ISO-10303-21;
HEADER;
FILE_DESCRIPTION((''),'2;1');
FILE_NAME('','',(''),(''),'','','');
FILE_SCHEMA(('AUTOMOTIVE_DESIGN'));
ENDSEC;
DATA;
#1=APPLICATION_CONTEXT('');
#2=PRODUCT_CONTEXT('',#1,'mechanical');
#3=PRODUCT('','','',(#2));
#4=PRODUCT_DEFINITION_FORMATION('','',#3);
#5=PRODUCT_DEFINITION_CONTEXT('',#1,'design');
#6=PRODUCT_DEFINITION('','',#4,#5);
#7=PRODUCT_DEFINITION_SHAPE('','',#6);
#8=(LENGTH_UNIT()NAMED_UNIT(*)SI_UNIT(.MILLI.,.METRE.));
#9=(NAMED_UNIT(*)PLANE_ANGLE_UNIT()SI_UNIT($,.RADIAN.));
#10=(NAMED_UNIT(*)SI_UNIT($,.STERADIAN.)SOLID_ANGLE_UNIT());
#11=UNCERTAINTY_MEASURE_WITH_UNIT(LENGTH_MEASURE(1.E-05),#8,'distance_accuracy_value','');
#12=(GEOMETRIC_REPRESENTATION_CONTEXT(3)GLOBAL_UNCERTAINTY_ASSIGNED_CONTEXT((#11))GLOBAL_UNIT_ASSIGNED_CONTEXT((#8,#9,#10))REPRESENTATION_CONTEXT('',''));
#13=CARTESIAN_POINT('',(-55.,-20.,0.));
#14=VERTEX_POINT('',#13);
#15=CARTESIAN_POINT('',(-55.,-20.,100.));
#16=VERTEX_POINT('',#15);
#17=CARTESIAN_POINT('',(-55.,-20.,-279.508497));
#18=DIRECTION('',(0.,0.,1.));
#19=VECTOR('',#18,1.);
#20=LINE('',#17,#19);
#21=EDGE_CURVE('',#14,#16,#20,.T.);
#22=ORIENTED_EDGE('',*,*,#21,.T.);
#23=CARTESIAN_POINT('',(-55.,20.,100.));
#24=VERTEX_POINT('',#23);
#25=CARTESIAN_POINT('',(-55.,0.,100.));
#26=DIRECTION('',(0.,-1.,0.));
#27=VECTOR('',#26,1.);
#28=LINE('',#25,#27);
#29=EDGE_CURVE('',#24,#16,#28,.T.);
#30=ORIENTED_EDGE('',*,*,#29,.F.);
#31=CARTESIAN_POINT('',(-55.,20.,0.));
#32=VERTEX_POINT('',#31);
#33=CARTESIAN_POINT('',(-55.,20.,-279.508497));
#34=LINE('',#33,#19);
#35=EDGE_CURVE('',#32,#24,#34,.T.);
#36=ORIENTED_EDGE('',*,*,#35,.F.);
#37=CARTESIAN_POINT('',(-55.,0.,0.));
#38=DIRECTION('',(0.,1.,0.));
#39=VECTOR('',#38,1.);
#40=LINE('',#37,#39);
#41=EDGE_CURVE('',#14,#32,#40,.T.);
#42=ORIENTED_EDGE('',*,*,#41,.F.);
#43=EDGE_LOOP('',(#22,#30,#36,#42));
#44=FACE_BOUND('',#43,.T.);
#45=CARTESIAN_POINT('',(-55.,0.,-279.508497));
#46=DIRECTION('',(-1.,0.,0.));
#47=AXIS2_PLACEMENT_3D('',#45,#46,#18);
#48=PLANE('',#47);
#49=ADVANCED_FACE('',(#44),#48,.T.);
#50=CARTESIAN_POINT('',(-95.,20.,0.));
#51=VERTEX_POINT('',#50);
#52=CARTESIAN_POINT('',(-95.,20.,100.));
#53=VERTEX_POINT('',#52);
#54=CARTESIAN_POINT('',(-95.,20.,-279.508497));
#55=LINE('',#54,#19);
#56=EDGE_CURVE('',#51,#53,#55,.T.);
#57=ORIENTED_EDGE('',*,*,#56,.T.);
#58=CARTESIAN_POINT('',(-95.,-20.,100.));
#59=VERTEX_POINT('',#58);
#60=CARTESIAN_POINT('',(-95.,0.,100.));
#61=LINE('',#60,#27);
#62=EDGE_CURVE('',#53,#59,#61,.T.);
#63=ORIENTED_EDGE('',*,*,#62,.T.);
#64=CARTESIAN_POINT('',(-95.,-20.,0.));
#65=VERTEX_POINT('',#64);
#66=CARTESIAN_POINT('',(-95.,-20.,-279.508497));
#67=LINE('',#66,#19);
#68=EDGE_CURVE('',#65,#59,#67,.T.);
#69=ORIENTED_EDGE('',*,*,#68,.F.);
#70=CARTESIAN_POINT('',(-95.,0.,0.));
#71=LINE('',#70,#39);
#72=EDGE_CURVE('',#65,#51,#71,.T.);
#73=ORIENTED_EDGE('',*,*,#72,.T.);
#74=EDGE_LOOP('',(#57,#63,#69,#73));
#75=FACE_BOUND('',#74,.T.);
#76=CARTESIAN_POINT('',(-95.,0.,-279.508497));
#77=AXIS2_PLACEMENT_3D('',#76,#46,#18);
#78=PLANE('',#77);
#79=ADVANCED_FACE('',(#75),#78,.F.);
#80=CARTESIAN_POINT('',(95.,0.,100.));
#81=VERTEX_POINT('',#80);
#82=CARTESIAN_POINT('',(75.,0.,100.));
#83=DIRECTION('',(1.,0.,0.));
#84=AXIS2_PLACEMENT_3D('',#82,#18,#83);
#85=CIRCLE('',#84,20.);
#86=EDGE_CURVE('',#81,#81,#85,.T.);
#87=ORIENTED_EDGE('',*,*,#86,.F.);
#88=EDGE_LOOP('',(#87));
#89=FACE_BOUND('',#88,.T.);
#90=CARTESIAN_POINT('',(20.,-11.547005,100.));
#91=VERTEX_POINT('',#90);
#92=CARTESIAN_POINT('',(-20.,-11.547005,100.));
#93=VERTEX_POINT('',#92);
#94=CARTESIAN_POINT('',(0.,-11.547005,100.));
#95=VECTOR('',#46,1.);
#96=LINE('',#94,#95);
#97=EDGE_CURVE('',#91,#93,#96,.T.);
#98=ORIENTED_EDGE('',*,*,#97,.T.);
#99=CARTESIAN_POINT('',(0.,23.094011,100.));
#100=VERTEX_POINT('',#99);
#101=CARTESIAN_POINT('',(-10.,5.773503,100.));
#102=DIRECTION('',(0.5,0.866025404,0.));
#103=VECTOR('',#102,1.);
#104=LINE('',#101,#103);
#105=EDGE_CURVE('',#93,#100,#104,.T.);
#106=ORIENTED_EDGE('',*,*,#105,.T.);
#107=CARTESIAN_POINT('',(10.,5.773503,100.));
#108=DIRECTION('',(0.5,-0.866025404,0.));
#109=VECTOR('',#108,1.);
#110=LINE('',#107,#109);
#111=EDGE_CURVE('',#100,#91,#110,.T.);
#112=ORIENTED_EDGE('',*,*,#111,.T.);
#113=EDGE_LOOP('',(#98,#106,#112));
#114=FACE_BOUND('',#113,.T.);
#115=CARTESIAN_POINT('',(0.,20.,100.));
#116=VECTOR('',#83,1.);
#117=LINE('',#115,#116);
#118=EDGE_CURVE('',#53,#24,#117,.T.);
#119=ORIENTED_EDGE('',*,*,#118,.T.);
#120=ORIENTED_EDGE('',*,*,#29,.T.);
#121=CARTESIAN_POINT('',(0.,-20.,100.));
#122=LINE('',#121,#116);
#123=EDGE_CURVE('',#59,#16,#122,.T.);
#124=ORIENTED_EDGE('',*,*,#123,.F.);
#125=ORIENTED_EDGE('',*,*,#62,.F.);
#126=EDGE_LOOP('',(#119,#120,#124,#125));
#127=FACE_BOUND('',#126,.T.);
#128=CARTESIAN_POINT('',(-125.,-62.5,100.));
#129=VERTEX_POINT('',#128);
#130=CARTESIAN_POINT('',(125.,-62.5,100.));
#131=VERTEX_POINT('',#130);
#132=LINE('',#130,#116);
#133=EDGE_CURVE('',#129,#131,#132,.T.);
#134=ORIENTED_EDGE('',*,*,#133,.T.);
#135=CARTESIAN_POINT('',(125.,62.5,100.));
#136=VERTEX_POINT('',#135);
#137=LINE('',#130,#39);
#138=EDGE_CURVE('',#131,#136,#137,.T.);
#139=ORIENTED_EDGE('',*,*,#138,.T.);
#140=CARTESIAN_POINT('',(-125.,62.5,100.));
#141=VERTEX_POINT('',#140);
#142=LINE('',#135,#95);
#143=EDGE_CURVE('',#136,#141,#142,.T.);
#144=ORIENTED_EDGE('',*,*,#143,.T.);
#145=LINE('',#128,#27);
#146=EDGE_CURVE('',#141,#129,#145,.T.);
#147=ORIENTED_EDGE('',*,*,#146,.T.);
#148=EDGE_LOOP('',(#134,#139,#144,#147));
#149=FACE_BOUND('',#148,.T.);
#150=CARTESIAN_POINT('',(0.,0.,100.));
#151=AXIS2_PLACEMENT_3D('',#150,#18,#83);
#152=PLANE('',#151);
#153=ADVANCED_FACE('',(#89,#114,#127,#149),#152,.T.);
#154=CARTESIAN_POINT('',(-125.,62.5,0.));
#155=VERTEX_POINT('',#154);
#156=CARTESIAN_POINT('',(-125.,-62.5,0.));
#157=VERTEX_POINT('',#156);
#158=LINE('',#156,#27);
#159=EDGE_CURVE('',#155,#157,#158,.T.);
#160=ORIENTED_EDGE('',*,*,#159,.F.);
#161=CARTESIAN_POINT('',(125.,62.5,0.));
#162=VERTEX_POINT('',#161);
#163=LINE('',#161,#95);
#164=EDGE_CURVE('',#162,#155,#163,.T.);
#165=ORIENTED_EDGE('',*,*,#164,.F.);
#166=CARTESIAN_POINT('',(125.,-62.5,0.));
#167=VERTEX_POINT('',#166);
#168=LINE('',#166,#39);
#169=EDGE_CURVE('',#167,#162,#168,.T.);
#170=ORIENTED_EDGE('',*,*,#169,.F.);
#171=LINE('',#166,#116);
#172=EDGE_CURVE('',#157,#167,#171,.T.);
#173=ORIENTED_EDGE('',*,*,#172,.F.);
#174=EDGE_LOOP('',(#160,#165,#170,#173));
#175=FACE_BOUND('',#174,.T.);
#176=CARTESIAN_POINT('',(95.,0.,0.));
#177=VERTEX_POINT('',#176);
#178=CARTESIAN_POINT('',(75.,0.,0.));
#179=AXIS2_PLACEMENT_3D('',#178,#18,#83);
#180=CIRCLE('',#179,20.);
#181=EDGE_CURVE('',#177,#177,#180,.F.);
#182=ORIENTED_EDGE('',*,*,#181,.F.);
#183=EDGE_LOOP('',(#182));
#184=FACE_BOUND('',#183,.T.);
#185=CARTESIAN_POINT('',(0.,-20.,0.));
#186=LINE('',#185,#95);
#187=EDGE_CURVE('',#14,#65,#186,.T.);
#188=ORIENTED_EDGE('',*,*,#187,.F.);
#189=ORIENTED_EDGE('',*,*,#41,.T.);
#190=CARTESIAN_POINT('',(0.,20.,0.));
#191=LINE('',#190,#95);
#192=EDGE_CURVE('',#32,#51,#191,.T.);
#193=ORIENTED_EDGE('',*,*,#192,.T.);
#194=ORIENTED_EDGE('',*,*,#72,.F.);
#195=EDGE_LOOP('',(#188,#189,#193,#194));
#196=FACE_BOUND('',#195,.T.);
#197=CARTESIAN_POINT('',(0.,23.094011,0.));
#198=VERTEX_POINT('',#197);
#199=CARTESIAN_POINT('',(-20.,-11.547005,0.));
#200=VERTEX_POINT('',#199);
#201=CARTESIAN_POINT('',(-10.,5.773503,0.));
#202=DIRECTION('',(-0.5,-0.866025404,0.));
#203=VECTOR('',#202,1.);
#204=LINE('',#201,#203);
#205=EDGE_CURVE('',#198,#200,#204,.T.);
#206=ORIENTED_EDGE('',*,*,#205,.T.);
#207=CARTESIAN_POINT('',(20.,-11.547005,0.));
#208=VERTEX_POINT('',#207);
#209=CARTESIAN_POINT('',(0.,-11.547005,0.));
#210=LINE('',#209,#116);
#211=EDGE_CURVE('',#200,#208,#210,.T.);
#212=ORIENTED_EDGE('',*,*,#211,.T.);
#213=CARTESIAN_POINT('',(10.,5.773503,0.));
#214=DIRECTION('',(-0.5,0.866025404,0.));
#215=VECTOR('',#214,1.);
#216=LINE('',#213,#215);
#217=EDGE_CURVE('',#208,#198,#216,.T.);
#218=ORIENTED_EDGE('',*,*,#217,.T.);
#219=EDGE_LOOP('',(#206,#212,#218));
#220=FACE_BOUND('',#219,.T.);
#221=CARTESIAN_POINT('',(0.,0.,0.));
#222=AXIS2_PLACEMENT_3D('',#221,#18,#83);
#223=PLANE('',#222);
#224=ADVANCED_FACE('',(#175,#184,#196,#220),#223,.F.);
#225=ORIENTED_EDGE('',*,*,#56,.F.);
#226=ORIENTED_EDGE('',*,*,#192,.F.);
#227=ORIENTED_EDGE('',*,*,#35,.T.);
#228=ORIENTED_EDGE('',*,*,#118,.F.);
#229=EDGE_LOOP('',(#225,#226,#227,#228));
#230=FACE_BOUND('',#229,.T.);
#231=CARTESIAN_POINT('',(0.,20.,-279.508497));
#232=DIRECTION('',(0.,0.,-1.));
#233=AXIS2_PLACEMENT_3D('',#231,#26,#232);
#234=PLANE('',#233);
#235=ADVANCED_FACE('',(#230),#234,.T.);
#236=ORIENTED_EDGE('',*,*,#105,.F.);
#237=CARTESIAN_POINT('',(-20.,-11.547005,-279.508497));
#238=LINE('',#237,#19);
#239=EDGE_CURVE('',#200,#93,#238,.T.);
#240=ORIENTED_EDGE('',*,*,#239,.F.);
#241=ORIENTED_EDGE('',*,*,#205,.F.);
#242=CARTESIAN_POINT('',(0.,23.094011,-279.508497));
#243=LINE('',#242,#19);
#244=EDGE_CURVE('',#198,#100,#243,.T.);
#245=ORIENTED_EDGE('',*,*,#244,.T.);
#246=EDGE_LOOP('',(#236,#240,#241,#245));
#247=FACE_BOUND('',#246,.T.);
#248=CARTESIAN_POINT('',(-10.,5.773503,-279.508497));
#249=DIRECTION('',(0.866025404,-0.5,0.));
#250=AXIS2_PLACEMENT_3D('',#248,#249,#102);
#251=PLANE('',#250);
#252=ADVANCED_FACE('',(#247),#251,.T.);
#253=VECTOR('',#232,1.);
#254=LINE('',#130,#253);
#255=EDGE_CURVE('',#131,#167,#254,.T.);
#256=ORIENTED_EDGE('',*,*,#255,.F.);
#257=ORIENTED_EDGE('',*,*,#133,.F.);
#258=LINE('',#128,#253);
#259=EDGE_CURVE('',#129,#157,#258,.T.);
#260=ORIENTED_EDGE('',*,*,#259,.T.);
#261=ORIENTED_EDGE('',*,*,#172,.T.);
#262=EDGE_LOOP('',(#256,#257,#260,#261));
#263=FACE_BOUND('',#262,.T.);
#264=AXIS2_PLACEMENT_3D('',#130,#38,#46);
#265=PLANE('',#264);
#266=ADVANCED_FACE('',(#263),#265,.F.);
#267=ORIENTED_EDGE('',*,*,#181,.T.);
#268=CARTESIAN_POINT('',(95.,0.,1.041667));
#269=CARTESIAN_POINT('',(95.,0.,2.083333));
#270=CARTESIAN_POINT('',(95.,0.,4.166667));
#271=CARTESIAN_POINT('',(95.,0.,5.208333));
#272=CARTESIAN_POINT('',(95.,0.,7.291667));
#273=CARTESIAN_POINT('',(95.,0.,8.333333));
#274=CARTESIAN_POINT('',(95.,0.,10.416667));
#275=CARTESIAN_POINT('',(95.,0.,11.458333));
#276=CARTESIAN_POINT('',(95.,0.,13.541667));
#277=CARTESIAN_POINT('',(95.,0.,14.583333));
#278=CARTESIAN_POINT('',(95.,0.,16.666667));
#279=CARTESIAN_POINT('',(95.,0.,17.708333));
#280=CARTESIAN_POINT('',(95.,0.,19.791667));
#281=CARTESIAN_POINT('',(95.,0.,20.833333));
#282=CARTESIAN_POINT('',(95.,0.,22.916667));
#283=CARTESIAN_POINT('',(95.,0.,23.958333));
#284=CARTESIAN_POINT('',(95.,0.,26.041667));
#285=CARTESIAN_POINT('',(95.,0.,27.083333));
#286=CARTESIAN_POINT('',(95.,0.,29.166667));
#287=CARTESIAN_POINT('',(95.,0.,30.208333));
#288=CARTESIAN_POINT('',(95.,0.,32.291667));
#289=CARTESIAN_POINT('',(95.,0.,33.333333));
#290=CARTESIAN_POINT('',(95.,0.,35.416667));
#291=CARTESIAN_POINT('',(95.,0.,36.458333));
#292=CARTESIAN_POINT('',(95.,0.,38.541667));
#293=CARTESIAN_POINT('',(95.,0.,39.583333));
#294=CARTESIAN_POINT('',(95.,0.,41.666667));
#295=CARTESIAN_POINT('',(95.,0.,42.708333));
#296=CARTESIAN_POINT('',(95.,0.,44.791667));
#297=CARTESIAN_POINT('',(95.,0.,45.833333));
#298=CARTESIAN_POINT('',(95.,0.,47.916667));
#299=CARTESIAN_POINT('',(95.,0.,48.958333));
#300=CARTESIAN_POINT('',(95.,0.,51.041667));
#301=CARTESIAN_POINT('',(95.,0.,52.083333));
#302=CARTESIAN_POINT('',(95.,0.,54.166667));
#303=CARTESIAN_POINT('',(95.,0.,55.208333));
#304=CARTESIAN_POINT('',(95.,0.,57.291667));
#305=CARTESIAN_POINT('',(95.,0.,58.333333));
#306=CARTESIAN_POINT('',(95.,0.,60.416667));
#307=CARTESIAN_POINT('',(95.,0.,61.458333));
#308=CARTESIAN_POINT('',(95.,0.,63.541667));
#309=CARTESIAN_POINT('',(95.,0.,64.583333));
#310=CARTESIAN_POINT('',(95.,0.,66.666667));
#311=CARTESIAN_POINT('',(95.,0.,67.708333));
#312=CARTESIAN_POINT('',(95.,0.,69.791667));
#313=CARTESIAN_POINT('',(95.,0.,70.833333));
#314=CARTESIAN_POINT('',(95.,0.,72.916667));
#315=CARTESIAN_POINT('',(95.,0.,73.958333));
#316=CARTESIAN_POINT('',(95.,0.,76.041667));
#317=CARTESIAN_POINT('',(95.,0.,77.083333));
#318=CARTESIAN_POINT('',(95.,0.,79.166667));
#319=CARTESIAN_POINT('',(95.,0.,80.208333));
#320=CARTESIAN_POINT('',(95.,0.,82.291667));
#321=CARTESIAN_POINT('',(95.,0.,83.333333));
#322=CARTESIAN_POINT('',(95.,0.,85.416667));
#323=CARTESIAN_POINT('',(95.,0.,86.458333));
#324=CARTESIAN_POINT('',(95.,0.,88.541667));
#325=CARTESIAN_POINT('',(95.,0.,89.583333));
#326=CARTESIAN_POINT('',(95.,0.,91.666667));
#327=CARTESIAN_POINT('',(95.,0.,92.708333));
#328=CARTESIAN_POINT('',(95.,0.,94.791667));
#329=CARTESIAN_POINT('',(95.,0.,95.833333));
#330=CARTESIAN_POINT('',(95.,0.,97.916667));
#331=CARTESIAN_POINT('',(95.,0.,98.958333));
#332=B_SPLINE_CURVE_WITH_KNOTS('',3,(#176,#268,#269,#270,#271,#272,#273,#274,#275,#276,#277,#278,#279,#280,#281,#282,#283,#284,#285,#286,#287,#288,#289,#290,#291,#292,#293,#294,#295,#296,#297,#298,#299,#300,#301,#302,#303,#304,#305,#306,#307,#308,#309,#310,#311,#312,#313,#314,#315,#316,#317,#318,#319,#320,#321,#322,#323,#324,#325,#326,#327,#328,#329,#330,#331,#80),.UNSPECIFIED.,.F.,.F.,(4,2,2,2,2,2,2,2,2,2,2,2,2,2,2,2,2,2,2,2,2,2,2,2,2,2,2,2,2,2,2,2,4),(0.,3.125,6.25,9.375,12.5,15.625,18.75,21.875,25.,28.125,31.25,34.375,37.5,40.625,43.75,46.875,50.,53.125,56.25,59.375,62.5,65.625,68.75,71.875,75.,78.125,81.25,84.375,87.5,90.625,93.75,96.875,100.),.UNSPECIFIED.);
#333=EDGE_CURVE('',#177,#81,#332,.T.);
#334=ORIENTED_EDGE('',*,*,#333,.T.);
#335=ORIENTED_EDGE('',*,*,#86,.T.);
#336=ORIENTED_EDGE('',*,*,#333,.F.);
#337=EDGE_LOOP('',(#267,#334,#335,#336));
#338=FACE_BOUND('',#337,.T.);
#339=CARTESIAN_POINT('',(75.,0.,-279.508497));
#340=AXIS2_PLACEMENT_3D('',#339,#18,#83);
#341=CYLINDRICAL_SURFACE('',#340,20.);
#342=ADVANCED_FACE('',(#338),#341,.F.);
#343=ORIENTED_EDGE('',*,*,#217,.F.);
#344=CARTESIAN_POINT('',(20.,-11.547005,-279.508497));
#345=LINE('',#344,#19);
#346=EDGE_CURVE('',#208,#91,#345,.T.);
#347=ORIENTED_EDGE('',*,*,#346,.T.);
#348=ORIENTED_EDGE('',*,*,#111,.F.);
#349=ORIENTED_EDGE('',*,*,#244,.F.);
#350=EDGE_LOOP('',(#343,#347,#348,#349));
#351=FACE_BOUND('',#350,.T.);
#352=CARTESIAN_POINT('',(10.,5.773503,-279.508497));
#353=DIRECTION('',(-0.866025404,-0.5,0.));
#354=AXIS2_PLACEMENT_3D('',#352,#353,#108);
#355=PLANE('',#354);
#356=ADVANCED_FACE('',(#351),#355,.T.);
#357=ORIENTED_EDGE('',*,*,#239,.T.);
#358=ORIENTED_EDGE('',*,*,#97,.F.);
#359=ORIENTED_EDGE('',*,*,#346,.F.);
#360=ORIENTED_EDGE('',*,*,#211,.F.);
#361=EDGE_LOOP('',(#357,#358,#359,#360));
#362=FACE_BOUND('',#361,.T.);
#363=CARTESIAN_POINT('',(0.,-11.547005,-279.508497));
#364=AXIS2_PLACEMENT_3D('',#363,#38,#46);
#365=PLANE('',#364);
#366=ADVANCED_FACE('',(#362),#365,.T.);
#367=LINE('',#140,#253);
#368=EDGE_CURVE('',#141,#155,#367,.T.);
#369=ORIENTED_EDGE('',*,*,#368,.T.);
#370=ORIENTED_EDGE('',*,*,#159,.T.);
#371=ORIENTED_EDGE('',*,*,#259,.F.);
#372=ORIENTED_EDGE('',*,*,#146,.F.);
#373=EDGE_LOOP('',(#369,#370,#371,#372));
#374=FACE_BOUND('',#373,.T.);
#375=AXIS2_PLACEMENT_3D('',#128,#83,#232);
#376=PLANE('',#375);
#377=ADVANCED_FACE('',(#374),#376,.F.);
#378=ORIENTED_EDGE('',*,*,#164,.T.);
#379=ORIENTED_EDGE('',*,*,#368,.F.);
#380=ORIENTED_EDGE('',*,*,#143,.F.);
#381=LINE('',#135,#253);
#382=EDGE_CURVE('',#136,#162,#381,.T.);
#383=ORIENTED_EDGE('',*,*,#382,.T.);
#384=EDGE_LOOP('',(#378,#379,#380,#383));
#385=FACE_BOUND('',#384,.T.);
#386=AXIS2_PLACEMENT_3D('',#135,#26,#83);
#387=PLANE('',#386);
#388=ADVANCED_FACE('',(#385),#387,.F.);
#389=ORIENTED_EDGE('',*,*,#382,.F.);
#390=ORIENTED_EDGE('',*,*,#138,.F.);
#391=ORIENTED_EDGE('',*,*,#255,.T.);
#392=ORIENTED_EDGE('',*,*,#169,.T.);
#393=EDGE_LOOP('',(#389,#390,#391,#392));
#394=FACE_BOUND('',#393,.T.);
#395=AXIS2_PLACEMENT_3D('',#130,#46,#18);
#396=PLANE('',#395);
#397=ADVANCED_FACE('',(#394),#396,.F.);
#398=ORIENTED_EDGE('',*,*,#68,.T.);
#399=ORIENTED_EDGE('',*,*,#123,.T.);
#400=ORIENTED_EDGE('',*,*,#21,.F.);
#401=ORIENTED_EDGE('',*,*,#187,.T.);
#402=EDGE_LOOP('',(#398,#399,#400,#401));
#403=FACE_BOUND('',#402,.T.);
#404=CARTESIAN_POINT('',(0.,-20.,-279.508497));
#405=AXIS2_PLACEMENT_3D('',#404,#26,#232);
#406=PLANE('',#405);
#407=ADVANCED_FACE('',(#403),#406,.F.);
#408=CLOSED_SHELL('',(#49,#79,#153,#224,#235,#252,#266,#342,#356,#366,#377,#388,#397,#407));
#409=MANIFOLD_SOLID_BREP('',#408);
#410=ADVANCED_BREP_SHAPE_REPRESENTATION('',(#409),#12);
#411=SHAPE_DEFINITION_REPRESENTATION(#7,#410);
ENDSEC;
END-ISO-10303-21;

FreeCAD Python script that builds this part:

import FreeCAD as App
import Part
import Sketcher
Q = App.Units.Quantity

doc = App.newDocument("Part")
body = doc.addObject("PartDesign::Body", "Body")

sketch1 = body.newObject("Sketcher::SketchObject", "Sketch")
sketch1.AttachmentSupport = (doc.getObject("XY_Plane"), [""])
sketch1.MapMode = "FlatFace"
sketch1.addGeometry([
    Part.LineSegment(App.Vector(-125, 62, 0), App.Vector(-125, -62, 0)),
    Part.LineSegment(App.Vector(-125, -62, 0), App.Vector(125, -62, 0)),
    Part.LineSegment(App.Vector(125, -62, 0), App.Vector(125, 62, 0)),
    Part.LineSegment(App.Vector(125, 62, 0), App.Vector(-125, 62, 0)),
    Part.LineSegment(App.Vector(115, -58, 0), App.Vector(-115, -58, 0)),
    Part.LineSegment(App.Vector(-115, -58, 0), App.Vector(-115, 58, 0)),
    Part.LineSegment(App.Vector(-115, 58, 0), App.Vector(115, 58, 0)),
    Part.LineSegment(App.Vector(115, 58, 0), App.Vector(115, -58, 0)),
], False)
sketch1.addConstraint([
    Sketcher.Constraint("Coincident", 0, 2, 1, 1),
    Sketcher.Constraint("Coincident", 1, 2, 2, 1),
    Sketcher.Constraint("Coincident", 2, 2, 3, 1),
    Sketcher.Constraint("Coincident", 3, 2, 0, 1),
    Sketcher.Constraint("Coincident", 4, 2, 5, 1),
    Sketcher.Constraint("Coincident", 5, 2, 6, 1),
    Sketcher.Constraint("Coincident", 6, 2, 7, 1),
    Sketcher.Constraint("Coincident", 7, 2, 4, 1),
    Sketcher.Constraint("Vertical", 0),
    Sketcher.Constraint("Horizontal", 1),
    Sketcher.Constraint("Vertical", 2),
    Sketcher.Constraint("Horizontal", 3),
    Sketcher.Constraint("Horizontal", 4),
    Sketcher.Constraint("Vertical", 5),
    Sketcher.Constraint("Horizontal", 6),
    Sketcher.Constraint("Vertical", 7),
    Sketcher.Constraint("Symmetric", 0, 2, 2, 2, -1, 1),
    Sketcher.Constraint("Symmetric", 4, 2, 6, 2, -1, 1),
    Sketcher.Constraint("DistanceX", 1, 1, 1, 2, Q("250 mm")),
    Sketcher.Constraint("DistanceX", 4, 2, 4, 1, Q("230 mm")),
    Sketcher.Constraint("DistanceY", 0, 2, 0, 1, Q("125 mm")),
    Sketcher.Constraint("DistanceY", 5, 1, 5, 2, Q("115 mm")),
])
pad1 = body.newObject("PartDesign::Pad", "Pad")
pad1.Profile = sketch1
pad1.Length = 100

sketch2 = body.newObject("Sketcher::SketchObject", "Sketch001")
sketch2.AttachmentSupport = (doc.getObject("XY_Plane"), [""])
sketch2.MapMode = "FlatFace"
sketch2.AttachmentOffset = App.Placement(App.Vector(0, 0, 100), App.Rotation())
sketch2.addGeometry([
    Part.LineSegment(App.Vector(-125, 62, 0), App.Vector(-125, -62, 0)),
    Part.LineSegment(App.Vector(-125, -62, 0), App.Vector(125, -62, 0)),
    Part.LineSegment(App.Vector(125, -62, 0), App.Vector(125, 62, 0)),
    Part.LineSegment(App.Vector(125, 62, 0), App.Vector(-125, 62, 0)),
    Part.Circle(App.Vector(75, 0, 0), App.Vector(0, 0, 1), 20),
    Part.LineSegment(App.Vector(0, 23, 0), App.Vector(20, -12, 0)),
    Part.LineSegment(App.Vector(20, -12, 0), App.Vector(-20, -12, 0)),
    Part.LineSegment(App.Vector(-20, -12, 0), App.Vector(0, 23, 0)),
    Part.LineSegment(App.Vector(-55, -20, 0), App.Vector(-95, -20, 0)),
    Part.LineSegment(App.Vector(-95, -20, 0), App.Vector(-95, 20, 0)),
    Part.LineSegment(App.Vector(-95, 20, 0), App.Vector(-55, 20, 0)),
    Part.LineSegment(App.Vector(-55, 20, 0), App.Vector(-55, -20, 0)),
], False)
sketch2.addConstraint([
    Sketcher.Constraint("Coincident", 0, 2, 1, 1),
    Sketcher.Constraint("Coincident", 1, 2, 2, 1),
    Sketcher.Constraint("Coincident", 2, 2, 3, 1),
    Sketcher.Constraint("Coincident", 3, 2, 0, 1),
    Sketcher.Constraint("Coincident", 5, 2, 6, 1),
    Sketcher.Constraint("Coincident", 6, 2, 7, 1),
    Sketcher.Constraint("Coincident", 7, 2, 5, 1),
    Sketcher.Constraint("Coincident", 8, 2, 9, 1),
    Sketcher.Constraint("Coincident", 9, 2, 10, 1),
    Sketcher.Constraint("Coincident", 10, 2, 11, 1),
    Sketcher.Constraint("Coincident", 11, 2, 8, 1),
    Sketcher.Constraint("Vertical", 0),
    Sketcher.Constraint("Horizontal", 1),
    Sketcher.Constraint("Vertical", 2),
    Sketcher.Constraint("Horizontal", 3),
    Sketcher.Constraint("Horizontal", 6),
    Sketcher.Constraint("Horizontal", 8),
    Sketcher.Constraint("Vertical", 9),
    Sketcher.Constraint("Horizontal", 10),
    Sketcher.Constraint("Vertical", 11),
    Sketcher.Constraint("Symmetric", 0, 2, 2, 2, -1, 1),
    Sketcher.Constraint("PointOnObject", 4, 3, -1),
    Sketcher.Constraint("PointOnObject", 7, 2, -2),
    Sketcher.Constraint("Equal", 6, 8),
    Sketcher.Constraint("Equal", 10, 9),
    Sketcher.Constraint("Equal", 5, 7),
    Sketcher.Constraint("Diameter", 4, Q("40 mm")),
    Sketcher.Constraint("DistanceX", 1, 1, 1, 2, Q("250 mm")),
    Sketcher.Constraint("DistanceX", 6, 2, 6, 1, Q("40 mm")),
    Sketcher.Constraint("DistanceY", 0, 2, 0, 1, Q("125 mm")),
    Sketcher.Constraint("Angle", 5, Q("-60 deg")),
    Sketcher.Constraint("DistanceX", -1, 1, 4, 3, Q("75 mm")),
    Sketcher.Constraint("DistanceX", 8, 2, -1, 1, Q("95 mm")),
    Sketcher.Constraint("DistanceY", 8, 2, -1, 1, Q("20 mm")),
    Sketcher.Constraint("DistanceY", -1, 1, 7, 2, Q("23.094011 mm")),
])
pad2 = body.newObject("PartDesign::Pad", "Pad001")
pad2.Profile = sketch2
pad2.Length = 100
pad2.Reversed = True

doc.recompute()
